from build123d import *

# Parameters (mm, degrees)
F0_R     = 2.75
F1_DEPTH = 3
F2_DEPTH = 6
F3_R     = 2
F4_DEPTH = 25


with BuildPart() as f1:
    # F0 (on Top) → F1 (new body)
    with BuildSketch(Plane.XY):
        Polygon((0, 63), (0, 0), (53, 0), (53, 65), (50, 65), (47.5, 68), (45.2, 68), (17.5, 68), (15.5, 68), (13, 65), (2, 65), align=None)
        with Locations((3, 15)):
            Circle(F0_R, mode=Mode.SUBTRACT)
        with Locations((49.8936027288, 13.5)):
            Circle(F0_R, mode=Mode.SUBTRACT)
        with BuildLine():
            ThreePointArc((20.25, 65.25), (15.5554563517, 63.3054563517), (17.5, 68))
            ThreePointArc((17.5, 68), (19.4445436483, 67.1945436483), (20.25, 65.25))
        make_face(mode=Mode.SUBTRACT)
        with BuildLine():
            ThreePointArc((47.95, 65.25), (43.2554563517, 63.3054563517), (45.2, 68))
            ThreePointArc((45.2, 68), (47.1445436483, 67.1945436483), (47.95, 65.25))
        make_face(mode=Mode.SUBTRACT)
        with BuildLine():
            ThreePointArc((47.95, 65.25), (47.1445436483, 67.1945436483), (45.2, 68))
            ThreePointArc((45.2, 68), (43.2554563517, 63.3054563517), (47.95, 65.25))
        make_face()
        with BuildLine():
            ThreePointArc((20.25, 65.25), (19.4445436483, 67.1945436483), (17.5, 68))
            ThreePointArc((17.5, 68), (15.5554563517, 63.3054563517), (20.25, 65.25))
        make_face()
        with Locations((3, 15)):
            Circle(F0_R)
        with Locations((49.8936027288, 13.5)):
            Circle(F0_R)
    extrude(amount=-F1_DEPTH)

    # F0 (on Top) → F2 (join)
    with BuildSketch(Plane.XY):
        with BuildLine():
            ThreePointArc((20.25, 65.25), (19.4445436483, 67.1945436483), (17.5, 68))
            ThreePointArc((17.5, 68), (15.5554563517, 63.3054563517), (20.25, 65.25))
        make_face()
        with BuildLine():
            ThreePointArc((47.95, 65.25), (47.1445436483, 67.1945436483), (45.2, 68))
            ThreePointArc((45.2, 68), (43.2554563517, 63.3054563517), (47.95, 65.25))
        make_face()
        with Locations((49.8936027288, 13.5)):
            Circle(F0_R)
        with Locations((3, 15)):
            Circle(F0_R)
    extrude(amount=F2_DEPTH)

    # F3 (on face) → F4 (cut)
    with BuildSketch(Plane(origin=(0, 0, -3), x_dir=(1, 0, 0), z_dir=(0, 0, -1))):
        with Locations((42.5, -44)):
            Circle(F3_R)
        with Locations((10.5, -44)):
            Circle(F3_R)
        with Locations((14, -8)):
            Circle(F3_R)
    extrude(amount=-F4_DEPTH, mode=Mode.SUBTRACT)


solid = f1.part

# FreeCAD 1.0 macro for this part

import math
import FreeCAD as App
import Part
import Sketcher

V = App.Vector
Q = App.Units.Quantity

doc = App.newDocument("Part")
body = doc.addObject("PartDesign::Body", "Body")

# Sketch on XY plane
sketch1 = body.newObject("Sketcher::SketchObject", "Sketch")
sketch1.AttachmentSupport = (doc.getObject("XY_Plane"), [""])
sketch1.MapMode = "FlatFace"
sketch1.addGeometry([
    Part.LineSegment(V(47.5, 68, 0), V(15.5, 68, 0)),  # 0
    Part.LineSegment(V(15.5, 68, 0), V(13, 65, 0)),  # 1
    Part.LineSegment(V(13, 65, 0), V(2, 65, 0)),  # 2
    Part.LineSegment(V(2, 65, 0), V(0, 63, 0)),  # 3
    Part.LineSegment(V(0, 63, 0), V(0, 0, 0)),  # 4
    Part.LineSegment(V(0, 0, 0), V(53, 0, 0)),  # 5
    Part.LineSegment(V(53, 0, 0), V(53, 65, 0)),  # 6
    Part.LineSegment(V(53, 65, 0), V(50, 65, 0)),  # 7
    Part.LineSegment(V(50, 65, 0), V(47.5, 68, 0)),  # 8
], False)
sketch1.addConstraint([
    Sketcher.Constraint("Coincident", 0, 2, 1, 1),
    Sketcher.Constraint("Coincident", 1, 2, 2, 1),
    Sketcher.Constraint("Coincident", 2, 2, 3, 1),
    Sketcher.Constraint("Coincident", 3, 2, 4, 1),
    Sketcher.Constraint("Coincident", 4, 2, 5, 1),
    Sketcher.Constraint("Coincident", 5, 2, 6, 1),
    Sketcher.Constraint("Coincident", 6, 2, 7, 1),
    Sketcher.Constraint("Coincident", 7, 2, 8, 1),
    Sketcher.Constraint("Coincident", 8, 2, 0, 1),
    Sketcher.Constraint("Horizontal", 0),
    Sketcher.Constraint("Horizontal", 2),
    Sketcher.Constraint("Vertical", 4),
    Sketcher.Constraint("Horizontal", 5),
    Sketcher.Constraint("Vertical", 6),
    Sketcher.Constraint("Horizontal", 7),
    Sketcher.Constraint("Coincident", 4, 2, -1, 1),
    Sketcher.Constraint("Horizontal", 2, 2, 6, 2),
    Sketcher.Constraint("Equal", 1, 8),
    Sketcher.Constraint("DistanceX", 0, 2, 0, 1, 32.0),
    Sketcher.Constraint("DistanceX", 2, 2, 2, 1, 11.0),
    Sketcher.Constraint("DistanceX", 5, 1, 5, 2, 53.0),
    Sketcher.Constraint("DistanceX", 7, 2, 7, 1, 3.0),
    Sketcher.Constraint("DistanceY", 4, 2, 4, 1, 63.0),
    Sketcher.Constraint("DistanceY", 6, 1, 6, 2, 65.0),
    Sketcher.Constraint("Angle", 3, Q("-135 deg")),
    Sketcher.Constraint("DistanceY", -1, 1, 0, 2, 68.0),
])
pad1 = body.newObject("PartDesign::Pad", "Pad")
pad1.Profile = sketch1
pad1.Length = 3
pad1.Reversed = True

# Sketch on XY plane
sketch2 = body.newObject("Sketcher::SketchObject", "Sketch001")
sketch2.AttachmentSupport = (doc.getObject("XY_Plane"), [""])
sketch2.MapMode = "FlatFace"
sketch2.addGeometry([
    Part.ArcOfCircle(Part.Circle(V(17.5, 65.25, 0), V(0, 0, 1), 2.75), math.radians(0), math.radians(90)),  # 0
    Part.ArcOfCircle(Part.Circle(V(17.5, 65.25, 0), V(0, 0, 1), 2.75), math.radians(90), math.radians(360)),  # 1
    Part.ArcOfCircle(Part.Circle(V(45.2, 65.25, 0), V(0, 0, 1), 2.75), math.radians(0), math.radians(90)),  # 2
    Part.ArcOfCircle(Part.Circle(V(45.2, 65.25, 0), V(0, 0, 1), 2.75), math.radians(90), math.radians(360)),  # 3
    Part.Circle(V(49.893603, 13.5, 0), V(0, 0, 1), 2.75),  # 4
    Part.Circle(V(3, 15, 0), V(0, 0, 1), 2.75),  # 5
], False)
sketch2.addConstraint([
    Sketcher.Constraint("Tangent", 0, 1, 1, 2),
    Sketcher.Constraint("Coincident", 1, 1, 0, 2),
    Sketcher.Constraint("Tangent", 2, 1, 3, 2),
    Sketcher.Constraint("Coincident", 3, 1, 2, 2),
    Sketcher.Constraint("Equal", 1, 2),
    Sketcher.Constraint("Equal", 3, 4),
    Sketcher.Constraint("Equal", 4, 5),
    Sketcher.Constraint("Horizontal", 1, 3, 2, 3),
    Sketcher.Constraint("Horizontal", 3, 3, 0, 1),
    Sketcher.Constraint("Horizontal", 0, 1, 2, 1),
    Sketcher.Constraint("Vertical", 0, 3, 1, 1),
    Sketcher.Constraint("Vertical", 2, 3, 3, 1),
    Sketcher.Constraint("Diameter", 4, 5.5),
    Sketcher.Constraint("DistanceX", -1, 1, 5, 3, 3.0),
    Sketcher.Constraint("DistanceY", -1, 1, 5, 3, 15.0),
    Sketcher.Constraint("DistanceY", -1, 1, 1, 1, 68.0),
    Sketcher.Constraint("DistanceX", -1, 1, 0, 3, 17.5),
    Sketcher.Constraint("DistanceX", -1, 1, 2, 3, 45.2),
    Sketcher.Constraint("DistanceY", -1, 1, 4, 3, 13.5),
    Sketcher.Constraint("DistanceX", -1, 1, 4, 3, 49.893603),
])
pad2 = body.newObject("PartDesign::Pad", "Pad001")
pad2.Profile = sketch2
pad2.Length = 6

# Sketch on XY plane
sketch3 = body.newObject("Sketcher::SketchObject", "Sketch002")
sketch3.AttachmentSupport = (doc.getObject("XY_Plane"), [""])
sketch3.MapMode = "FlatFace"
sketch3.AttachmentOffset = App.Placement(V(0, 0, -3), App.Rotation())
sketch3.addGeometry([
    Part.Circle(V(42.5, 44, 0), V(0, 0, 1), 2),
    Part.Circle(V(10.5, 44, 0), V(0, 0, 1), 2),
    Part.Circle(V(14, 8, 0), V(0, 0, 1), 2),
], False)
sketch3.addConstraint([
    Sketcher.Constraint("Equal", 0, 1),
    Sketcher.Constraint("Equal", 1, 2),
    Sketcher.Constraint("Horizontal", 0, 3, 1, 3),
    Sketcher.Constraint("Diameter", 0, 4.0),
    Sketcher.Constraint("DistanceY", -1, 1, 0, 3, 44.0),
    Sketcher.Constraint("DistanceX", -1, 1, 2, 3, 14.0),
    Sketcher.Constraint("DistanceY", -1, 1, 2, 3, 8.0),
    Sketcher.Constraint("DistanceX", 1, 3, 0, 3, 32.0),
    Sketcher.Constraint("DistanceX", -1, 1, 0, 3, 42.5),
])
pocket1 = body.newObject("PartDesign::Pocket", "Pocket")
pocket1.Profile = sketch3
pocket1.Length = 25
pocket1.Reversed = True

doc.recompute()
